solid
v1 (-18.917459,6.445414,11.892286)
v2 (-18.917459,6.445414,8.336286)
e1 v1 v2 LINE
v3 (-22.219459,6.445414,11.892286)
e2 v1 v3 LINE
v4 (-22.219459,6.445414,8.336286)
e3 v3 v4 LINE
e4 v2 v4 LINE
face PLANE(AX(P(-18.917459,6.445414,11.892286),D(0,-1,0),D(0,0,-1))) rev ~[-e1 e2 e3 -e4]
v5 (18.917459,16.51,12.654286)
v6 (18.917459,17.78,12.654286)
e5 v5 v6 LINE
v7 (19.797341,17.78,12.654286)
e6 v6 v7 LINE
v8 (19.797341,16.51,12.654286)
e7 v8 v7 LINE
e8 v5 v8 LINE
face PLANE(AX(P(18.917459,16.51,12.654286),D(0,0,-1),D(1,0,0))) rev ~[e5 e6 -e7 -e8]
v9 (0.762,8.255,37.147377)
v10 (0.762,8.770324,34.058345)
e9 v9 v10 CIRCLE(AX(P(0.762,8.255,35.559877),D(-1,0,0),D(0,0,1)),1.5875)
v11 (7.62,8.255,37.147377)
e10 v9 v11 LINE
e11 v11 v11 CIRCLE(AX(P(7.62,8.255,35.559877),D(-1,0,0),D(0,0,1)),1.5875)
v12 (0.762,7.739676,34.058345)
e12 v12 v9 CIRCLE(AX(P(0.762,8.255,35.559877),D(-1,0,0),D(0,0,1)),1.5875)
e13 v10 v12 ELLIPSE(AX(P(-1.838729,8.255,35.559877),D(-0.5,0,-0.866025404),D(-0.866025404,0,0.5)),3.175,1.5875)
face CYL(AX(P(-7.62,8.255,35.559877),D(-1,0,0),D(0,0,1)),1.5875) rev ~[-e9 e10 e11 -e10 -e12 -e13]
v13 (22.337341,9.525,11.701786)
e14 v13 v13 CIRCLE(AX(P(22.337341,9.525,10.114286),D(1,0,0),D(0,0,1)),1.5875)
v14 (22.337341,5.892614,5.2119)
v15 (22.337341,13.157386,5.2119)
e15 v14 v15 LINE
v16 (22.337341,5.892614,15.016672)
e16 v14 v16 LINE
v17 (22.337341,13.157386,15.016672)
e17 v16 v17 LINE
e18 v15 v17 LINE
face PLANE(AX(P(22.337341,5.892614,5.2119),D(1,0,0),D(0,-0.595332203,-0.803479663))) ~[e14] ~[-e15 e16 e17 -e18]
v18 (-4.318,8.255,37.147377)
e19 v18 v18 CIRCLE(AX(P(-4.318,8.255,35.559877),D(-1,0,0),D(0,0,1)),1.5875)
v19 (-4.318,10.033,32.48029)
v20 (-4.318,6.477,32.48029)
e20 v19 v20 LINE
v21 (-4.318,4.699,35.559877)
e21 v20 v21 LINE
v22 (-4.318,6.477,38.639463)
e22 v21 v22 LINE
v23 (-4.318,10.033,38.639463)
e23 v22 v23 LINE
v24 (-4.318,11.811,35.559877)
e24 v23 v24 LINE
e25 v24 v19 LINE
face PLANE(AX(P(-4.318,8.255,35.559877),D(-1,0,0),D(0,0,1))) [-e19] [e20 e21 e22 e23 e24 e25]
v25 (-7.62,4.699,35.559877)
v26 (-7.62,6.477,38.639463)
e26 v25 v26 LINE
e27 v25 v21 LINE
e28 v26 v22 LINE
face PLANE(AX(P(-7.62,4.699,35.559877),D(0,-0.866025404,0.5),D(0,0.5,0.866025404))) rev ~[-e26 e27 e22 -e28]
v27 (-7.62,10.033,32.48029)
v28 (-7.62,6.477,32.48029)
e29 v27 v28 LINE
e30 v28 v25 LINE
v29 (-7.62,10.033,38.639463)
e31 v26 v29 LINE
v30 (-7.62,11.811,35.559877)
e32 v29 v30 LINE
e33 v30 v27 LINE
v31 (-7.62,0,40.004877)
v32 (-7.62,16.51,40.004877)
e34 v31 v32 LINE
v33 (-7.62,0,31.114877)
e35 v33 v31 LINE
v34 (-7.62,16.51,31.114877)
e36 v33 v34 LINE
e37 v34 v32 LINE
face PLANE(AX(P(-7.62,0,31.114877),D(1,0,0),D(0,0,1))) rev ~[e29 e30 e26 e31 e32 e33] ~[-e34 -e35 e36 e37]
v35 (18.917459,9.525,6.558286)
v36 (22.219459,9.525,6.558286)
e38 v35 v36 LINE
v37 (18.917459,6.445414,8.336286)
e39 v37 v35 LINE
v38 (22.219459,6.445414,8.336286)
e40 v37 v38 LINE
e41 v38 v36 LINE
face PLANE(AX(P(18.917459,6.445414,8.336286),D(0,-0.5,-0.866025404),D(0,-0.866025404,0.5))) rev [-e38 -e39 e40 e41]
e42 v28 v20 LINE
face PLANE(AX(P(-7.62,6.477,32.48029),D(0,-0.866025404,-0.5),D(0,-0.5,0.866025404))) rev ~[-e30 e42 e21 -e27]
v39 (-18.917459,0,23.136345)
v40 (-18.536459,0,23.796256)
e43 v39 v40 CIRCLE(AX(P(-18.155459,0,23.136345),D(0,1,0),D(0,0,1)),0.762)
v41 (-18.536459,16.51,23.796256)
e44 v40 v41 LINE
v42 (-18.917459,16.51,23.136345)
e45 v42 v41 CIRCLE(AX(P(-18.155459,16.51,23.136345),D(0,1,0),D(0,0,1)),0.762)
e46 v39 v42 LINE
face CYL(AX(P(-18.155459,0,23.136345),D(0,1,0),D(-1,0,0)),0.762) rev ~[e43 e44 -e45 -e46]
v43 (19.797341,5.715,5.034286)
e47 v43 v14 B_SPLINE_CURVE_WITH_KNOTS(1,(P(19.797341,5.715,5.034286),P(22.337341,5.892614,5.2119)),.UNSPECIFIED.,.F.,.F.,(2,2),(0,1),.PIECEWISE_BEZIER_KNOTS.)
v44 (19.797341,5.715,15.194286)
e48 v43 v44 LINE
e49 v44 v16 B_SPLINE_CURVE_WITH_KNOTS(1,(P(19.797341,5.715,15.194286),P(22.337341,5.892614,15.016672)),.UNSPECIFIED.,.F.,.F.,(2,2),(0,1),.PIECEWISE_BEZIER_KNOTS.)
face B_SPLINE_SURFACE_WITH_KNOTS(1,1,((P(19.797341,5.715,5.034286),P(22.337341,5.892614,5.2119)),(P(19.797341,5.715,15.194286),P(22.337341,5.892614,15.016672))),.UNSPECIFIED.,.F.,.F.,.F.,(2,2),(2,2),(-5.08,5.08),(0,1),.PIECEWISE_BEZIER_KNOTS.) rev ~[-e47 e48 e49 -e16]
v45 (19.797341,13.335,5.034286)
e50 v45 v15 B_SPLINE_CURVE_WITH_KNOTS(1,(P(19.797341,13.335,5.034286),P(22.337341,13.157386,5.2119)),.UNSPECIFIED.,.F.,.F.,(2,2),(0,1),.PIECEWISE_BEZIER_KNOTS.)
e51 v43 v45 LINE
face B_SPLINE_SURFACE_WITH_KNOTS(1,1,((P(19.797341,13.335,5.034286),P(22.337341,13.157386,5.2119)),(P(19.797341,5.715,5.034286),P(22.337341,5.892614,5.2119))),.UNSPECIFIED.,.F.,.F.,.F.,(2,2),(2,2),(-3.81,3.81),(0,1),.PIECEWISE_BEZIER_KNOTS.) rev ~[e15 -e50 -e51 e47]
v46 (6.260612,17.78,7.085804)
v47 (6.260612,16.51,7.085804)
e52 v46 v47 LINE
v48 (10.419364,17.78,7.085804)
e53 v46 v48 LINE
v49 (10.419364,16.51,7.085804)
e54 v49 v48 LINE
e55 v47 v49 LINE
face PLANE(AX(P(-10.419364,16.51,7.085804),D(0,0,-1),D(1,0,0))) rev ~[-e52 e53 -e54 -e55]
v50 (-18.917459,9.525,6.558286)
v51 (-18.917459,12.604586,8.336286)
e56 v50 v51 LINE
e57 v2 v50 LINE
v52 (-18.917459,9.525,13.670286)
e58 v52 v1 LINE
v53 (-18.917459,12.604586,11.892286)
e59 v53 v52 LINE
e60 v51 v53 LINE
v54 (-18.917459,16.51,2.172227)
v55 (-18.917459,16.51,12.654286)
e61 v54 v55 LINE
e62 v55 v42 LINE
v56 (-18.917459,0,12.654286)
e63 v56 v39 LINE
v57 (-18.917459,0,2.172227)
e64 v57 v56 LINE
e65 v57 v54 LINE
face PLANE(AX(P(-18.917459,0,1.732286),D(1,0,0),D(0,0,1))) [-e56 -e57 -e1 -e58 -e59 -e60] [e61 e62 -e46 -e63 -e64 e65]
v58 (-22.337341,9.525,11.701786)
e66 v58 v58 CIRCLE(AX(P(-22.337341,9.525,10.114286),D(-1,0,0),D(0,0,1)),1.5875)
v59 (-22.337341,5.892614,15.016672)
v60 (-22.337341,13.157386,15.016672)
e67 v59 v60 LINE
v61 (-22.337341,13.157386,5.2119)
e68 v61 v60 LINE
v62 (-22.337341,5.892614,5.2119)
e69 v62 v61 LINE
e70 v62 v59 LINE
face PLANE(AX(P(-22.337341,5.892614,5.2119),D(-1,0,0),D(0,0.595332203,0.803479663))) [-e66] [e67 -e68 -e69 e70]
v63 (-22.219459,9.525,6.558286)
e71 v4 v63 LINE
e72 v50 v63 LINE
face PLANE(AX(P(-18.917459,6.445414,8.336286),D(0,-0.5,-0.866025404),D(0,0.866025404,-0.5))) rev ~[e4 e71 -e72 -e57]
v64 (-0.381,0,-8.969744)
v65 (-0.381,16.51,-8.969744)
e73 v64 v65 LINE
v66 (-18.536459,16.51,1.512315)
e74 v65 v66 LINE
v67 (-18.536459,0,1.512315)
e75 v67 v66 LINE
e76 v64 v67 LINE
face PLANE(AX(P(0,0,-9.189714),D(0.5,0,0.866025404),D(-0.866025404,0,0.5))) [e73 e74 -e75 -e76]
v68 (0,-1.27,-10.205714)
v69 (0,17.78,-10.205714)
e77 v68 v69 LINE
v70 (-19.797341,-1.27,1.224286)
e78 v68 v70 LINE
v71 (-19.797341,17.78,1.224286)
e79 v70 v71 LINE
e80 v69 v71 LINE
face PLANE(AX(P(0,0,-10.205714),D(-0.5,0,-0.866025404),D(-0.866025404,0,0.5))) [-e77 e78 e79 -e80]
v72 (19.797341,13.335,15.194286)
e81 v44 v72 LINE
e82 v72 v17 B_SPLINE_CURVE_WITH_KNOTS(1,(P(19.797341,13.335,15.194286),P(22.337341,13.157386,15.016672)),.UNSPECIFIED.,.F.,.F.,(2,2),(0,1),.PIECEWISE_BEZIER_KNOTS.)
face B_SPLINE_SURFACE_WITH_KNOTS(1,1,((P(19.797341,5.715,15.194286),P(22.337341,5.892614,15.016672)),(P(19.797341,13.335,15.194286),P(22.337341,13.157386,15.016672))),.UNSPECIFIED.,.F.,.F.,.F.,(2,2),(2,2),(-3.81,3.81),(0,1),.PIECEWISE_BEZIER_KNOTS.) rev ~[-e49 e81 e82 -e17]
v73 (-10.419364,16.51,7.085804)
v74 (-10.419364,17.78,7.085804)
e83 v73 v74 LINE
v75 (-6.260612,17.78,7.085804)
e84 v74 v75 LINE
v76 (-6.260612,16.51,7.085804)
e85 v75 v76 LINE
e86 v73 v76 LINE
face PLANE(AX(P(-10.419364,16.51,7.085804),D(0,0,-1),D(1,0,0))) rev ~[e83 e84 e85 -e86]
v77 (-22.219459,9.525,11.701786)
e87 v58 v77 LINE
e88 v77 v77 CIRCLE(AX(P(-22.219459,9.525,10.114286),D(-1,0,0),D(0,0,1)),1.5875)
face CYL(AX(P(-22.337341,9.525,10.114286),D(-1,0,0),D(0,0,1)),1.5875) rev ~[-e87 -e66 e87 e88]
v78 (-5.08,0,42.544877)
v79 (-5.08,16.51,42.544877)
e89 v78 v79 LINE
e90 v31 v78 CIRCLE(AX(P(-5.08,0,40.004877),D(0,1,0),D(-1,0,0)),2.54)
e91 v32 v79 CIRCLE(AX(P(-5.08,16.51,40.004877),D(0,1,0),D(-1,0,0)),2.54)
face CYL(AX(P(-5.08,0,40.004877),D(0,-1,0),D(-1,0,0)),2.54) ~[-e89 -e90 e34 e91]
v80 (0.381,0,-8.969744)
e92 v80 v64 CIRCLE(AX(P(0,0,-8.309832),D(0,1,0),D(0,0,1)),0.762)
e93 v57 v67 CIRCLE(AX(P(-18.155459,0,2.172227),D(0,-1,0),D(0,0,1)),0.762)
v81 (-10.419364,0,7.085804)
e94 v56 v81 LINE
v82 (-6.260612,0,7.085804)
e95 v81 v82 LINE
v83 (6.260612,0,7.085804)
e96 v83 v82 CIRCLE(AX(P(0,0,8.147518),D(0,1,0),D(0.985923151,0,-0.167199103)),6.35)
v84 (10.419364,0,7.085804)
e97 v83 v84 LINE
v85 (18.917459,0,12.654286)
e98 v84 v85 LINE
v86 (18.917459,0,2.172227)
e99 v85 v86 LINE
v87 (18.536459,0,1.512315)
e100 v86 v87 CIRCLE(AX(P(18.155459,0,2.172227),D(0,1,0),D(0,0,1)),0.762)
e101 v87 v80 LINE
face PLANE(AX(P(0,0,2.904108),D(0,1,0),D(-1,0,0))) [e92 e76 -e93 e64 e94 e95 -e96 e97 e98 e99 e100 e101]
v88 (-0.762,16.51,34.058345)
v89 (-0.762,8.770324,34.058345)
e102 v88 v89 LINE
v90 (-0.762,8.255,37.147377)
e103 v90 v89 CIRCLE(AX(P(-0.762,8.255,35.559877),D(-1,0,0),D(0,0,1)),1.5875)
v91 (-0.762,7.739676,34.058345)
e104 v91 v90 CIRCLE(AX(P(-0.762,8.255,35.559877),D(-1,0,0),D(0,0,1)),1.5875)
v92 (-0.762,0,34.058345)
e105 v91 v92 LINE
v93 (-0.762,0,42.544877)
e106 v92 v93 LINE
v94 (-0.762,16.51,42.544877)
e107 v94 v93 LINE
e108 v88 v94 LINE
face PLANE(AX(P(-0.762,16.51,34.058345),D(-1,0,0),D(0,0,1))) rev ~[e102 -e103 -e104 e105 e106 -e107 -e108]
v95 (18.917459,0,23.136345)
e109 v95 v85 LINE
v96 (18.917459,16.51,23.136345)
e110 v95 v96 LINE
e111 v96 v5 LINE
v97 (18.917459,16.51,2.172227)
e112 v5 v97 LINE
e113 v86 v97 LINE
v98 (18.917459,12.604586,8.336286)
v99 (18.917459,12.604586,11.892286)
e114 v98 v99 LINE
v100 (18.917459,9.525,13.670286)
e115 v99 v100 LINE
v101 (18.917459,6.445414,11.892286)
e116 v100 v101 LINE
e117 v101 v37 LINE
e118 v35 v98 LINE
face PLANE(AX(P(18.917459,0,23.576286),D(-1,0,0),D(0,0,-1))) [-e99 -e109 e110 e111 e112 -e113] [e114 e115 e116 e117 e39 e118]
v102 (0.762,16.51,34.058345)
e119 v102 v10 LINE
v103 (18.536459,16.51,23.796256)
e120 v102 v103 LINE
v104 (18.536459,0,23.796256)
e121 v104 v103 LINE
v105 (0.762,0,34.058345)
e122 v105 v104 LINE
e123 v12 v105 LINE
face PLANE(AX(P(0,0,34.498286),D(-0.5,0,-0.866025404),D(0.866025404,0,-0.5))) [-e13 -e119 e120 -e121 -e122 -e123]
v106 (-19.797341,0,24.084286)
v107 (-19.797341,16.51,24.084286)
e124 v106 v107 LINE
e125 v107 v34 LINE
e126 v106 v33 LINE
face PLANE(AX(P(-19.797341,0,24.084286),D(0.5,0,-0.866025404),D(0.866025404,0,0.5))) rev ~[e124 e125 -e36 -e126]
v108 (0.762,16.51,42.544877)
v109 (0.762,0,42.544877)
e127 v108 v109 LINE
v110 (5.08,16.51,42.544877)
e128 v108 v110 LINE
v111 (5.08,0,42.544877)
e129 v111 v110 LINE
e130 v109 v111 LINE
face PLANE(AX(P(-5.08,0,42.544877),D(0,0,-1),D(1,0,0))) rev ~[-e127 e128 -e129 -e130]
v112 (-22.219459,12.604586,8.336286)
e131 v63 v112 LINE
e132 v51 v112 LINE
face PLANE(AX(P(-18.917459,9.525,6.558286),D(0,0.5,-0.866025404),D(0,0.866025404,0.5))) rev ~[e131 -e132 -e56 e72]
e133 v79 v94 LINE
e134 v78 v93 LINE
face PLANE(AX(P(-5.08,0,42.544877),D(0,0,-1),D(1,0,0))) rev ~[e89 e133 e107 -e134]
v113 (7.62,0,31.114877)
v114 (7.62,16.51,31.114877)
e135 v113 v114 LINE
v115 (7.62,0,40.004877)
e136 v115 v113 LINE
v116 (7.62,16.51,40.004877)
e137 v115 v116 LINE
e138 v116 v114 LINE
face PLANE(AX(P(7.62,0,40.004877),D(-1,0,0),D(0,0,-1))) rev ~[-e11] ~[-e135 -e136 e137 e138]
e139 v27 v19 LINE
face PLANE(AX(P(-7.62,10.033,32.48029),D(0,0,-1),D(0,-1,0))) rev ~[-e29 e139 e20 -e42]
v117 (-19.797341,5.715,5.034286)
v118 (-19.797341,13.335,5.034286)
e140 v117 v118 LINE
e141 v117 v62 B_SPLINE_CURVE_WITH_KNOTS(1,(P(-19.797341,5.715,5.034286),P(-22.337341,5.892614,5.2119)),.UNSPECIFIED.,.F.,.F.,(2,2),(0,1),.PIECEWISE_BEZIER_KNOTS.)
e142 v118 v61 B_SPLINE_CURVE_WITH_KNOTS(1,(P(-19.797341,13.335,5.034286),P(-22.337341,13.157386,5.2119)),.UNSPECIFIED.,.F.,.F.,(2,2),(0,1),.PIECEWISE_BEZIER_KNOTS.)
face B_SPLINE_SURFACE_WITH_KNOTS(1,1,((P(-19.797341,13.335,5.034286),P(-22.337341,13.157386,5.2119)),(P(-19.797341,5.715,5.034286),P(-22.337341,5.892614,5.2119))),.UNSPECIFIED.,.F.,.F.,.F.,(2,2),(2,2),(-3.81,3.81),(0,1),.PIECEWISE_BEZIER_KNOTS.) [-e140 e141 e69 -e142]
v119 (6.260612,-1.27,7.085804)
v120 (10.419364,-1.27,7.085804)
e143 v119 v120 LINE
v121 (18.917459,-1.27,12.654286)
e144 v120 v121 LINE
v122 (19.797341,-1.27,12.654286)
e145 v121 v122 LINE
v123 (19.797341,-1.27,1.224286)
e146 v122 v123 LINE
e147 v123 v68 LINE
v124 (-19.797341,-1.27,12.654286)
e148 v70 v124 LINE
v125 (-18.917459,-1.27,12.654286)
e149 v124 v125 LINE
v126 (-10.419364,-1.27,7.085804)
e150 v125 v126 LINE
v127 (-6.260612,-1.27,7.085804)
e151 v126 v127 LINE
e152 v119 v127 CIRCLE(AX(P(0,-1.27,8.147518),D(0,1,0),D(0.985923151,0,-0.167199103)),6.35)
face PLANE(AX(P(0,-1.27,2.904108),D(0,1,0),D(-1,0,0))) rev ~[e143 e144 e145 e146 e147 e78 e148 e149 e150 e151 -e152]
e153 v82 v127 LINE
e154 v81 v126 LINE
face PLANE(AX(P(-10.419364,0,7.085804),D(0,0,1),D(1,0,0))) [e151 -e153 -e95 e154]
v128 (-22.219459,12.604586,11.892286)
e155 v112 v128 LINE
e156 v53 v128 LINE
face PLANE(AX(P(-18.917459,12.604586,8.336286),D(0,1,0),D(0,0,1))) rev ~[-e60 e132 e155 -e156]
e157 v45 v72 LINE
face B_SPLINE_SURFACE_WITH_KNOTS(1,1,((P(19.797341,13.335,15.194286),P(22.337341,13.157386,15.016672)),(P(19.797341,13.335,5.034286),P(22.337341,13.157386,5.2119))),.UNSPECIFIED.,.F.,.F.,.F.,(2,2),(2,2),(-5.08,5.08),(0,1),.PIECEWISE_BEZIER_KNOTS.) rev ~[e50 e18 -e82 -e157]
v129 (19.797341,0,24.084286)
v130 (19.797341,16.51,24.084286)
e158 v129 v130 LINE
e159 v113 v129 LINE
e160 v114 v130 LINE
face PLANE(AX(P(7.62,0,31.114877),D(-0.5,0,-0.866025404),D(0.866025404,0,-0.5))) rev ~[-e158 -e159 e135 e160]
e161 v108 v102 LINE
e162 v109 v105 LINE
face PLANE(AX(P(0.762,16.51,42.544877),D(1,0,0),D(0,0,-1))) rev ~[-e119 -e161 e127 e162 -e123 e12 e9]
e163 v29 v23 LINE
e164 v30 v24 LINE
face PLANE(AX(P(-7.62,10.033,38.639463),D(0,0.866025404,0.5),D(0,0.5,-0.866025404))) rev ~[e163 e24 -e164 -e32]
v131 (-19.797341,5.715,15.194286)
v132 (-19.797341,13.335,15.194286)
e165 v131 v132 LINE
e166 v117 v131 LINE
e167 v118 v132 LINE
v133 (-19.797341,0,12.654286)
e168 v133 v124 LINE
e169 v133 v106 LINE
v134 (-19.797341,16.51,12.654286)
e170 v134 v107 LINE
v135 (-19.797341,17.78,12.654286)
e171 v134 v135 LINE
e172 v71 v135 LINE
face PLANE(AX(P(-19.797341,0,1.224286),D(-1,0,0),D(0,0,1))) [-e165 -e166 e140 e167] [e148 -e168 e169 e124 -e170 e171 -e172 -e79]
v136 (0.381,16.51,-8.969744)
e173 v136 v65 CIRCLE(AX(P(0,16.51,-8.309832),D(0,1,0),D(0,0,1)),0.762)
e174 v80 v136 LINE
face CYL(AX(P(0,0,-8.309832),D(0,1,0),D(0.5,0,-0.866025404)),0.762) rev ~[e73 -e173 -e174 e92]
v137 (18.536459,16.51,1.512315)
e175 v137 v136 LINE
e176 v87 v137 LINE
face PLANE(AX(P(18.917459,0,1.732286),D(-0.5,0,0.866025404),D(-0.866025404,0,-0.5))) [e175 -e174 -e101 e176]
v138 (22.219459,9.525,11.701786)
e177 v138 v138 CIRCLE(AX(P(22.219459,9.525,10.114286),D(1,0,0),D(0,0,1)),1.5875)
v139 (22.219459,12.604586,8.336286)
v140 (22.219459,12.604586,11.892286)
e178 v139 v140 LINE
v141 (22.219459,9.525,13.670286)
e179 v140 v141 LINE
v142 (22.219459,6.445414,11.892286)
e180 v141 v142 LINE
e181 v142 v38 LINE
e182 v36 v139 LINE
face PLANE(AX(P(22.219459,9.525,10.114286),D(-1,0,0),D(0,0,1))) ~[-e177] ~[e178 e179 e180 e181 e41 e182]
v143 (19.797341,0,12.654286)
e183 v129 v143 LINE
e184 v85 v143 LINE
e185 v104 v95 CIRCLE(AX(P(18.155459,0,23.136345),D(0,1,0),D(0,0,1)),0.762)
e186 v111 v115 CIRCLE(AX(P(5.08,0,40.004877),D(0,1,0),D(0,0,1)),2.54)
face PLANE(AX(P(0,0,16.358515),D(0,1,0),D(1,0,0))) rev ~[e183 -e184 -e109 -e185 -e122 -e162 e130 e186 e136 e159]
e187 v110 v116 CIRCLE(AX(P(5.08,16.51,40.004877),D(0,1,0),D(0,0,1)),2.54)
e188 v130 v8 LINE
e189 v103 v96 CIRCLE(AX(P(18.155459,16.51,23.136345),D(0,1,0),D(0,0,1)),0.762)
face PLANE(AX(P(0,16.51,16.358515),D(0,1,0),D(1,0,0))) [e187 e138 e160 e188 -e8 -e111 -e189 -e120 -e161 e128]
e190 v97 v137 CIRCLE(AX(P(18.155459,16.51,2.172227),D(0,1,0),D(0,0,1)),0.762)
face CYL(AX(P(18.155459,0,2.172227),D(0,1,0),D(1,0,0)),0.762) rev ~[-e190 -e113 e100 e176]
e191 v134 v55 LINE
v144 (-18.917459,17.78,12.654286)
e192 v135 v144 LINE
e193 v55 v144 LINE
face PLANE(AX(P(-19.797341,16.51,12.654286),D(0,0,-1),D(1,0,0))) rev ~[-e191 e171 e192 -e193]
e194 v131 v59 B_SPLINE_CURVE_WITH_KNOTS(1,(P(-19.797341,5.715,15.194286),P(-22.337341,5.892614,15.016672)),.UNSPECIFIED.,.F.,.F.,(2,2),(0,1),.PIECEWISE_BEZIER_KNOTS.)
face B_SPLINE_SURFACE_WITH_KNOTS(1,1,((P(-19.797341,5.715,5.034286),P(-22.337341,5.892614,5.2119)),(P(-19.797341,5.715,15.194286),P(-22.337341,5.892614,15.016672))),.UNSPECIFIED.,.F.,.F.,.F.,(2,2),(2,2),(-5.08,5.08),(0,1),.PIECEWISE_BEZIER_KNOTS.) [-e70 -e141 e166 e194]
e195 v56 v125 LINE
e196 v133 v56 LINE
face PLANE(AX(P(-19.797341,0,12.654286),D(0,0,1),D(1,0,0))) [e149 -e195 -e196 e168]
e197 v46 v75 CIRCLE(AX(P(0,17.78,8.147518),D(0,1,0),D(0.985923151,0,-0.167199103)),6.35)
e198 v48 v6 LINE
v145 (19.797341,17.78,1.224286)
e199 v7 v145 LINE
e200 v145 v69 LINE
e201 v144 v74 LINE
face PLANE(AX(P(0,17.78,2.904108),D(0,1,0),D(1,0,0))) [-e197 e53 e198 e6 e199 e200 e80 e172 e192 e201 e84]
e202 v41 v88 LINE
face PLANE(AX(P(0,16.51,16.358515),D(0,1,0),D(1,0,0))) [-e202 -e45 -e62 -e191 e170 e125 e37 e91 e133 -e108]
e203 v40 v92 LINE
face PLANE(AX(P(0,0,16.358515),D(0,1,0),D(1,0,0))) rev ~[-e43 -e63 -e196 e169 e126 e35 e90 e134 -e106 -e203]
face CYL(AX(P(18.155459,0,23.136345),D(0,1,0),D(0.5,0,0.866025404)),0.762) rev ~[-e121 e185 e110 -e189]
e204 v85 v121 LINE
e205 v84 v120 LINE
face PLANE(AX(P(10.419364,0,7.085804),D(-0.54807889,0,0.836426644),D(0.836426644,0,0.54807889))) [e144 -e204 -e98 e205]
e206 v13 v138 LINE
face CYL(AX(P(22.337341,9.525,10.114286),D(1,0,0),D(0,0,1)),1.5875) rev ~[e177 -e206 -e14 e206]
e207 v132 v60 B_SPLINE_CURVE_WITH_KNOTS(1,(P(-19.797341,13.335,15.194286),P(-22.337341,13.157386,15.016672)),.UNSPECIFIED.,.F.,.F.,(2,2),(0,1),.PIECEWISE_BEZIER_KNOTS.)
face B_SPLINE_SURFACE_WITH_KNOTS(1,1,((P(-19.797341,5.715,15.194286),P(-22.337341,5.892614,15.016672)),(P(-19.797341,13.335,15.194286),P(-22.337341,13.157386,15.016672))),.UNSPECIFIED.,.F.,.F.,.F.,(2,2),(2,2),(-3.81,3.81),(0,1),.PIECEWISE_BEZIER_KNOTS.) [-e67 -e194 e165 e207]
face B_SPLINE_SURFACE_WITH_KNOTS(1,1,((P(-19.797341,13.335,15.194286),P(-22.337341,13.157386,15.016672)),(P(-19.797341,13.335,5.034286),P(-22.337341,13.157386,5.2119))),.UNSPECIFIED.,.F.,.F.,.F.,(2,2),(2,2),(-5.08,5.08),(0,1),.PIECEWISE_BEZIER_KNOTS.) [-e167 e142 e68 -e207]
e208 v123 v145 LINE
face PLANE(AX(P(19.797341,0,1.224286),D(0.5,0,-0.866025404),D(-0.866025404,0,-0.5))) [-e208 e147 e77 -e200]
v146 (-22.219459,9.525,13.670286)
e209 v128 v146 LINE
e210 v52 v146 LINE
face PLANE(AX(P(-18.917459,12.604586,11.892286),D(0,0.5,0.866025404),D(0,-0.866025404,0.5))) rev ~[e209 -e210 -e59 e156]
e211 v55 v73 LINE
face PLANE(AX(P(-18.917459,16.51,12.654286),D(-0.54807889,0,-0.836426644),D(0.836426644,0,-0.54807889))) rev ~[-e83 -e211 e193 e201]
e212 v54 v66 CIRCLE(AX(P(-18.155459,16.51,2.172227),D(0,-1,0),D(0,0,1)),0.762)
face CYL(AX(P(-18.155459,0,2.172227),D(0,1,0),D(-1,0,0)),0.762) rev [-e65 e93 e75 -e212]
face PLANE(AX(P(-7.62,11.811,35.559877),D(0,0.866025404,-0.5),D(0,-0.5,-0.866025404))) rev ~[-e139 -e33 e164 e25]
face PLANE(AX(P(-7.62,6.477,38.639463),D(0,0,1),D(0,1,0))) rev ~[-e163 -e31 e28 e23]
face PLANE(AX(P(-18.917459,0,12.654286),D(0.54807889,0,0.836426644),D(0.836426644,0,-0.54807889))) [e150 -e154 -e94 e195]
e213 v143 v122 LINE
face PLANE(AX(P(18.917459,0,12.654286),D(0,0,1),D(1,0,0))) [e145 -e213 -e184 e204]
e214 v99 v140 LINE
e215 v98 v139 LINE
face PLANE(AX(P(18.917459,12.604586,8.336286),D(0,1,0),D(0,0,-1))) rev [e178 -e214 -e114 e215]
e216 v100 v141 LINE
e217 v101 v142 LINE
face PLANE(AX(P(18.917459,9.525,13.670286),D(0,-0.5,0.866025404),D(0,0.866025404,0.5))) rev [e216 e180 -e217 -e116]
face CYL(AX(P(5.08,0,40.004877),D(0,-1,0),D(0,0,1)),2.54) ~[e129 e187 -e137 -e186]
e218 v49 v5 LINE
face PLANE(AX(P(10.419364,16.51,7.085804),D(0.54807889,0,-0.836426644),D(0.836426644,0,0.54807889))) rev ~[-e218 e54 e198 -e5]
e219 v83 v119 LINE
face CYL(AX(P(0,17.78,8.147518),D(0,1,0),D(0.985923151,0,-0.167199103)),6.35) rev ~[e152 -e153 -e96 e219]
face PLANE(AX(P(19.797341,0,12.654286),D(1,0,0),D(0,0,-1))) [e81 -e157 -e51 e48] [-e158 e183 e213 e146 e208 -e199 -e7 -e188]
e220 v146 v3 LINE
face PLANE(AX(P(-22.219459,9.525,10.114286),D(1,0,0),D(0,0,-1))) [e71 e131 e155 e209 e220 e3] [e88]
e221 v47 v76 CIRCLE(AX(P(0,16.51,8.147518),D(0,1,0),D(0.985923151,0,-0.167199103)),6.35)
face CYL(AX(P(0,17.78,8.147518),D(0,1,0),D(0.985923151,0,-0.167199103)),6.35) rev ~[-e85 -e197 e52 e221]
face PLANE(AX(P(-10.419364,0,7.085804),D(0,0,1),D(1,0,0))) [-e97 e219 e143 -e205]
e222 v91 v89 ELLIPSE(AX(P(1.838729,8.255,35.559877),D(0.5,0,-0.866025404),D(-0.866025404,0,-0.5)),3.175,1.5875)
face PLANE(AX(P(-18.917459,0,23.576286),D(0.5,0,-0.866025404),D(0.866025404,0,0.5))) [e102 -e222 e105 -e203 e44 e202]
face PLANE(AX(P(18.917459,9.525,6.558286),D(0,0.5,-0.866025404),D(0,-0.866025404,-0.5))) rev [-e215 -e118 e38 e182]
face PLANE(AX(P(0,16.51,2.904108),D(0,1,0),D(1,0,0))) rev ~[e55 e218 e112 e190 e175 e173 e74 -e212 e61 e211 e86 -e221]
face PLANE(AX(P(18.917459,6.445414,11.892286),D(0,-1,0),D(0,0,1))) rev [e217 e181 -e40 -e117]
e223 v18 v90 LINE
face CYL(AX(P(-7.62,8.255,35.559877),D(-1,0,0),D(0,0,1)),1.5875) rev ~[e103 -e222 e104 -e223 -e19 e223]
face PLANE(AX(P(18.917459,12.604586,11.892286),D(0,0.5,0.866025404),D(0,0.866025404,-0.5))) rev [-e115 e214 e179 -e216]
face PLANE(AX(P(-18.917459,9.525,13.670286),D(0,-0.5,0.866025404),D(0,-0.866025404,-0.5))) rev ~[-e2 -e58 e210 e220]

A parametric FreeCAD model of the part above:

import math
import FreeCAD as App
import Part
import Sketcher

V = App.Vector
Q = App.Units.Quantity


def edges_at(feature, points):
    """Names of the edges that pass closest to the given points."""
    edges = feature.Shape.Edges
    near = lambda p: min(range(len(edges)), key=lambda i: edges[i].distToShape(Part.Vertex(*p))[0])
    return sorted({f"Edge{near(p) + 1}" for p in points})

doc = App.newDocument("Part")
params = doc.addObject("Spreadsheet::Sheet", "Params")
for row, (alias, value) in enumerate([
    ("sketch1_radius", "0.1 in"),
    ("sketch1_width", "0.4 in"),
    ("sketch1_height", "0.9 in"),
    ("sketch1_length", "0.9 in"),
    ("sketch1_height2", "0.35 in"),
    ("pad1_length", "0.65 in"),
    ("sketch2_width", "0.06 in"),
    ("sketch3_diameter", "0.125 in"),
    ("sketch4_length", "0.4 in"),
    ("sketch4_length2", "0.9 in"),
    ("sketch4_height", "0.45 in"),
    ("pad2_length", "0.05 in"),
    ("sketch5_length", "0.4 in"),
    ("sketch5_length2", "0.9 in"),
    ("sketch5_height", "0.45 in"),
    ("pad3_length", "0.05 in"),
    ("sketch6_width", "0.3 in"),
    ("sketch6_height", "0.4 in"),
    ("pad4_length", "0.1 in"),
    ("pad4_taper", "-4 deg"),
    ("sketch7_diameter", "0.125 in"),
    ("sketch8_height", "0.14 in"),
    ("sketch8_length", "0.14 in"),
    ("pocket4_length", "0.13 in"),
    ("fillet_radius", "0.03 in"),
    ("sketch9_diameter", "0.125 in"),
    ("sketch10_width", "0.14 in"),
    ("sketch10_length", "0.14 in"),
    ("pocket6_length", "0.13 in"),
    ("sketch11_radius", "0.25 in"),
    ("pocket7_length", "3 in"),
], start=1):
    params.set(f"A{row}", alias)
    params.set(f"B{row}", "=" + value)
    params.setAlias(f"B{row}", alias)

body = doc.addObject("PartDesign::Body", "Body")

# Sketch on XZ plane
sketch1 = body.newObject("Sketcher::SketchObject", "Sketch")
sketch1.AttachmentSupport = (doc.getObject("XZ_Plane"), [""])
sketch1.MapMode = "FlatFace"
sketch1.addGeometry([
    Part.LineSegment(V(-7.6, 31.1, 0), V(-7.6, 40, 0)),  # 0
    Part.ArcOfCircle(Part.Circle(V(-5.1, 40, 0), V(0, 0, 1), 2.5), math.radians(90), math.radians(180)),  # 1
    Part.LineSegment(V(-5.1, 42.5, 0), V(5.1, 42.5, 0)),  # 2
    Part.ArcOfCircle(Part.Circle(V(5.1, 40, 0), V(0, 0, 1), 2.5), math.radians(0), math.radians(90)),  # 3
    Part.LineSegment(V(7.6, 40, 0), V(7.6, 31.1, 0)),  # 4
    Part.LineSegment(V(7.6, 31.1, 0), V(19.8, 24.1, 0)),  # 5
    Part.LineSegment(V(19.8, 24.1, 0), V(19.8, 1.2, 0)),  # 6
    Part.LineSegment(V(19.8, 1.2, 0), V(0, -10.2, 0)),  # 7
    Part.LineSegment(V(0, -10.2, 0), V(-19.8, 1.2, 0)),  # 8
    Part.LineSegment(V(-19.8, 1.2, 0), V(-19.8, 24.1, 0)),  # 9
    Part.LineSegment(V(-19.8, 24.1, 0), V(-7.6, 31.1, 0)),  # 10
    Part.LineSegment(V(-18.9, 1.7, 0), V(0, -9.2, 0)),  # 11
    Part.LineSegment(V(0, -9.2, 0), V(18.9, 1.7, 0)),  # 12
    Part.LineSegment(V(18.9, 1.7, 0), V(18.9, 23.6, 0)),  # 13
    Part.LineSegment(V(18.9, 23.6, 0), V(0, 34.5, 0)),  # 14
    Part.LineSegment(V(0, 34.5, 0), V(-18.9, 23.6, 0)),  # 15
    Part.LineSegment(V(-18.9, 23.6, 0), V(-18.9, 1.7, 0)),  # 16
], False)
sketch1.addConstraint([
    Sketcher.Constraint("Tangent", 0, 2, 1, 2),
    Sketcher.Constraint("Tangent", 1, 1, 2, 1),
    Sketcher.Constraint("Tangent", 2, 2, 3, 2),
    Sketcher.Constraint("Tangent", 3, 1, 4, 1),
    Sketcher.Constraint("Coincident", 4, 2, 5, 1),
    Sketcher.Constraint("Coincident", 5, 2, 6, 1),
    Sketcher.Constraint("Coincident", 6, 2, 7, 1),
    Sketcher.Constraint("Coincident", 7, 2, 8, 1),
    Sketcher.Constraint("Coincident", 8, 2, 9, 1),
    Sketcher.Constraint("Coincident", 9, 2, 10, 1),
    Sketcher.Constraint("Coincident", 10, 2, 0, 1),
    Sketcher.Constraint("Coincident", 11, 2, 12, 1),
    Sketcher.Constraint("Coincident", 12, 2, 13, 1),
    Sketcher.Constraint("Coincident", 13, 2, 14, 1),
    Sketcher.Constraint("Coincident", 14, 2, 15, 1),
    Sketcher.Constraint("Coincident", 15, 2, 16, 1),
    Sketcher.Constraint("Coincident", 16, 2, 11, 1),
    Sketcher.Constraint("Vertical", 0),
    Sketcher.Constraint("Horizontal", 2),
    Sketcher.Constraint("Vertical", 4),
    Sketcher.Constraint("Vertical", 6),
    Sketcher.Constraint("Vertical", 9),
    Sketcher.Constraint("Vertical", 13),
    Sketcher.Constraint("Vertical", 16),
    Sketcher.Constraint("Equal", 1, 3),
    Sketcher.Constraint("Symmetric", 6, 2, 8, 2, -2),
    Sketcher.Constraint("Symmetric", 4, 2, 10, 2, -2),
    Sketcher.Constraint("Symmetric", 13, 2, 15, 2, -2),
    Sketcher.Constraint("PointOnObject", 7, 2, -2),
    Sketcher.Constraint("PointOnObject", 11, 2, -2),
    Sketcher.Constraint("PointOnObject", 14, 2, -2),
    Sketcher.Constraint("Parallel", 5, 8),
    Sketcher.Constraint("Parallel", 7, 10),
    Sketcher.Constraint("Parallel", 8, 11),
    Sketcher.Constraint("Parallel", 10, 12),
    Sketcher.Constraint("Parallel", 11, 14),
    Sketcher.Constraint("Radius", 1, Q("0.1 in")),
    Sketcher.Constraint("DistanceX", 2, 1, 2, 2, Q("0.4 in")),
    Sketcher.Constraint("DistanceY", 6, 2, 6, 1, Q("0.9 in")),
    Sketcher.Constraint("Angle", 5, Q("-30 deg")),
    Sketcher.Constraint("Distance", 7, Q("0.9 in")),
    Sketcher.Constraint("DistanceY", 0, 1, 0, 2, Q("0.35 in")),
    Sketcher.Constraint("DistanceY", 13, 1, 13, 2, Q("0.86 in")),
    Sketcher.Constraint("Distance", 11, Q("0.86 in")),
    Sketcher.Constraint("DistanceY", 7, 2, 11, 2, Q("0.04 in")),
    Sketcher.Constraint("DistanceY", -1, 1, 1, 3, Q("40.004877 mm")),
])
sketch1.setExpression("Constraints[36]", "Params.sketch1_radius")
sketch1.setExpression("Constraints[37]", "Params.sketch1_width")
sketch1.setExpression("Constraints[38]", "Params.sketch1_height")
sketch1.setExpression("Constraints[40]", "Params.sketch1_length")
sketch1.setExpression("Constraints[41]", "Params.sketch1_height2")
pad1 = body.newObject("PartDesign::Pad", "Pad")
pad1.Profile = sketch1
pad1.setExpression("Length", "Params.pad1_length")
pad1.Reversed = True

# Sketch on XZ plane
sketch2 = body.newObject("Sketcher::SketchObject", "Sketch001")
sketch2.AttachmentSupport = (doc.getObject("XZ_Plane"), [""])
sketch2.MapMode = "FlatFace"
sketch2.AttachmentOffset = App.Placement(V(0, 0, -0.65 * 25.4), App.Rotation())
sketch2.addGeometry([
    Part.LineSegment(V(-0.8, 34.1, 0), V(-0.8, 42.5, 0)),  # 0
    Part.LineSegment(V(-0.8, 42.5, 0), V(0.8, 42.5, 0)),  # 1
    Part.LineSegment(V(0.8, 42.5, 0), V(0.8, 34.1, 0)),  # 2
    Part.LineSegment(V(0.8, 34.1, 0), V(0, 34.5, 0)),  # 3
    Part.LineSegment(V(0, 34.5, 0), V(-0.8, 34.1, 0)),  # 4
], False)
sketch2.addConstraint([
    Sketcher.Constraint("Coincident", 0, 2, 1, 1),
    Sketcher.Constraint("Coincident", 1, 2, 2, 1),
    Sketcher.Constraint("Coincident", 2, 2, 3, 1),
    Sketcher.Constraint("Coincident", 3, 2, 4, 1),
    Sketcher.Constraint("Coincident", 4, 2, 0, 1),
    Sketcher.Constraint("Vertical", 0),
    Sketcher.Constraint("Horizontal", 1),
    Sketcher.Constraint("Vertical", 2),
    Sketcher.Constraint("Symmetric", 2, 2, 4, 2, -2),
    Sketcher.Constraint("PointOnObject", 3, 2, -2),
    Sketcher.Constraint("Angle", 3, Q("150 deg")),
    Sketcher.Constraint("DistanceX", 1, 1, 1, 2, Q("0.06 in")),
    Sketcher.Constraint("DistanceY", 0, 1, 0, 2, Q("8.486532 mm")),
    Sketcher.Constraint("DistanceY", -1, 1, 0, 2, Q("42.544877 mm")),
])
sketch2.setExpression("Constraints[11]", "Params.sketch2_width")
pocket1 = body.newObject("PartDesign::Pocket", "Pocket")
pocket1.Profile = sketch2
pocket1.Type = "ThroughAll"
pocket1.Reversed = True

# Sketch on YZ plane
sketch3 = body.newObject("Sketcher::SketchObject", "Sketch002")
sketch3.AttachmentSupport = (doc.getObject("YZ_Plane"), [""])
sketch3.MapMode = "FlatFace"
sketch3.AttachmentOffset = App.Placement(V(0, 0, -0.3 * 25.4), App.Rotation())
sketch3.addGeometry(Part.Circle(V(8.3, 35.6, 0), V(0, 0, 1), 1.6), False)
sketch3.addConstraint([
    Sketcher.Constraint("Diameter", 0, Q("0.125 in")),
    Sketcher.Constraint("DistanceX", -1, 1, 0, 3, Q("0.325 in")),
    Sketcher.Constraint("DistanceY", -1, 1, 0, 3, Q("35.559877 mm")),
])
sketch3.setExpression("Constraints[0]", "Params.sketch3_diameter")
pocket2 = body.newObject("PartDesign::Pocket", "Pocket001")
pocket2.Profile = sketch3
pocket2.Type = "ThroughAll"
pocket2.Reversed = True

# Sketch on XZ plane
sketch4 = body.newObject("Sketcher::SketchObject", "Sketch003")
sketch4.AttachmentSupport = (doc.getObject("XZ_Plane"), [""])
sketch4.MapMode = "FlatFace"
sketch4.AttachmentOffset = App.Placement(V(0, 0, -0.65 * 25.4), App.Rotation())
sketch4.addGeometry([
    Part.LineSegment(V(-10.4, 7.1, 0), V(10.4, 7.1, 0)),  # 0
    Part.LineSegment(V(10.4, 7.1, 0), V(18.9, 12.7, 0)),  # 1
    Part.LineSegment(V(18.9, 12.7, 0), V(19.8, 12.7, 0)),  # 2
    Part.LineSegment(V(19.8, 12.7, 0), V(19.8, 1.2, 0)),  # 3
    Part.LineSegment(V(19.8, 1.2, 0), V(0, -10.2, 0)),  # 4
    Part.LineSegment(V(0, -10.2, 0), V(-19.8, 1.2, 0)),  # 5
    Part.LineSegment(V(-19.8, 1.2, 0), V(-19.8, 12.7, 0)),  # 6
    Part.LineSegment(V(-19.8, 12.7, 0), V(-18.9, 12.7, 0)),  # 7
    Part.LineSegment(V(-18.9, 12.7, 0), V(-10.4, 7.1, 0)),  # 8
], False)
sketch4.addConstraint([
    Sketcher.Constraint("Coincident", 0, 2, 1, 1),
    Sketcher.Constraint("Coincident", 1, 2, 2, 1),
    Sketcher.Constraint("Coincident", 2, 2, 3, 1),
    Sketcher.Constraint("Coincident", 3, 2, 4, 1),
    Sketcher.Constraint("Coincident", 4, 2, 5, 1),
    Sketcher.Constraint("Coincident", 5, 2, 6, 1),
    Sketcher.Constraint("Coincident", 6, 2, 7, 1),
    Sketcher.Constraint("Coincident", 7, 2, 8, 1),
    Sketcher.Constraint("Coincident", 8, 2, 0, 1),
    Sketcher.Constraint("Horizontal", 0),
    Sketcher.Constraint("Horizontal", 2),
    Sketcher.Constraint("Vertical", 3),
    Sketcher.Constraint("Vertical", 6),
    Sketcher.Constraint("Horizontal", 7),
    Sketcher.Constraint("Symmetric", 3, 2, 5, 2, -2),
    Sketcher.Constraint("Symmetric", 1, 2, 7, 2, -2),
    Sketcher.Constraint("PointOnObject", 4, 2, -2),
    Sketcher.Constraint("Equal", 1, 8),
    Sketcher.Constraint("Angle", 4, Q("-150 deg")),
    Sketcher.Constraint("Distance", 1, Q("0.4 in")),
    Sketcher.Constraint("Distance", 4, Q("0.9 in")),
    Sketcher.Constraint("DistanceY", 3, 2, 3, 1, Q("0.45 in")),
    Sketcher.Constraint("DistanceX", 0, 1, 0, 2, Q("20.838728 mm")),
    Sketcher.Constraint("DistanceX", 2, 1, 2, 2, Q("0.879882 mm")),
    Sketcher.Constraint("DistanceY", -1, 1, 0, 2, Q("7.085804 mm")),
])
sketch4.setExpression("Constraints[19]", "Params.sketch4_length")
sketch4.setExpression("Constraints[20]", "Params.sketch4_length2")
sketch4.setExpression("Constraints[21]", "Params.sketch4_height")
pad2 = body.newObject("PartDesign::Pad", "Pad001")
pad2.Profile = sketch4
pad2.setExpression("Length", "Params.pad2_length")
pad2.Reversed = True

# Sketch on XZ plane
sketch5 = body.newObject("Sketcher::SketchObject", "Sketch004")
sketch5.AttachmentSupport = (doc.getObject("XZ_Plane"), [""])
sketch5.MapMode = "FlatFace"
sketch5.addGeometry([
    Part.LineSegment(V(10.4, 7.1, 0), V(-10.4, 7.1, 0)),  # 0
    Part.LineSegment(V(-10.4, 7.1, 0), V(-18.9, 12.7, 0)),  # 1
    Part.LineSegment(V(-18.9, 12.7, 0), V(-19.8, 12.7, 0)),  # 2
    Part.LineSegment(V(-19.8, 12.7, 0), V(-19.8, 1.2, 0)),  # 3
    Part.LineSegment(V(-19.8, 1.2, 0), V(0, -10.2, 0)),  # 4
    Part.LineSegment(V(0, -10.2, 0), V(19.8, 1.2, 0)),  # 5
    Part.LineSegment(V(19.8, 1.2, 0), V(19.8, 12.7, 0)),  # 6
    Part.LineSegment(V(19.8, 12.7, 0), V(18.9, 12.7, 0)),  # 7
    Part.LineSegment(V(18.9, 12.7, 0), V(10.4, 7.1, 0)),  # 8
], False)
sketch5.addConstraint([
    Sketcher.Constraint("Coincident", 0, 2, 1, 1),
    Sketcher.Constraint("Coincident", 1, 2, 2, 1),
    Sketcher.Constraint("Coincident", 2, 2, 3, 1),
    Sketcher.Constraint("Coincident", 3, 2, 4, 1),
    Sketcher.Constraint("Coincident", 4, 2, 5, 1),
    Sketcher.Constraint("Coincident", 5, 2, 6, 1),
    Sketcher.Constraint("Coincident", 6, 2, 7, 1),
    Sketcher.Constraint("Coincident", 7, 2, 8, 1),
    Sketcher.Constraint("Coincident", 8, 2, 0, 1),
    Sketcher.Constraint("Horizontal", 0),
    Sketcher.Constraint("Horizontal", 2),
    Sketcher.Constraint("Vertical", 3),
    Sketcher.Constraint("Vertical", 6),
    Sketcher.Constraint("Horizontal", 7),
    Sketcher.Constraint("Symmetric", 3, 2, 5, 2, -2),
    Sketcher.Constraint("Symmetric", 1, 2, 7, 2, -2),
    Sketcher.Constraint("PointOnObject", 4, 2, -2),
    Sketcher.Constraint("Equal", 1, 8),
    Sketcher.Constraint("Angle", 4, Q("-30 deg")),
    Sketcher.Constraint("Distance", 1, Q("0.4 in")),
    Sketcher.Constraint("Distance", 4, Q("0.9 in")),
    Sketcher.Constraint("DistanceY", 3, 2, 3, 1, Q("0.45 in")),
    Sketcher.Constraint("DistanceX", 0, 2, 0, 1, Q("20.838728 mm")),
    Sketcher.Constraint("DistanceX", 2, 2, 2, 1, Q("0.879882 mm")),
    Sketcher.Constraint("DistanceY", -1, 1, 0, 2, Q("7.085804 mm")),
])
sketch5.setExpression("Constraints[19]", "Params.sketch5_length")
sketch5.setExpression("Constraints[20]", "Params.sketch5_length2")
sketch5.setExpression("Constraints[21]", "Params.sketch5_height")
pad3 = body.newObject("PartDesign::Pad", "Pad002")
pad3.Profile = sketch5
pad3.setExpression("Length", "Params.pad3_length")

# Sketch on YZ plane
sketch6 = body.newObject("Sketcher::SketchObject", "Sketch005")
sketch6.AttachmentSupport = (doc.getObject("YZ_Plane"), [""])
sketch6.MapMode = "FlatFace"
sketch6.AttachmentOffset = App.Placement(V(0, 0, -19.797341), App.Rotation())
sketch6.addGeometry([
    Part.LineSegment(V(13, 5, 0), V(6, 5, 0)),
    Part.LineSegment(V(6, 5, 0), V(6, 15, 0)),
    Part.LineSegment(V(6, 15, 0), V(13, 15, 0)),
    Part.LineSegment(V(13, 15, 0), V(13, 5, 0)),
], False)
sketch6.addConstraint([
    Sketcher.Constraint("Coincident", 0, 2, 1, 1),
    Sketcher.Constraint("Coincident", 1, 2, 2, 1),
    Sketcher.Constraint("Coincident", 2, 2, 3, 1),
    Sketcher.Constraint("Coincident", 3, 2, 0, 1),
    Sketcher.Constraint("Horizontal", 0),
    Sketcher.Constraint("Vertical", 1),
    Sketcher.Constraint("Horizontal", 2),
    Sketcher.Constraint("Vertical", 3),
    Sketcher.Constraint("DistanceX", 0, 2, 0, 1, Q("0.3 in")),
    Sketcher.Constraint("DistanceY", 1, 1, 1, 2, Q("0.4 in")),
    Sketcher.Constraint("DistanceX", -1, 1, 0, 2, Q("0.225 in")),
    Sketcher.Constraint("DistanceY", -1, 1, 0, 2, Q("5.034286 mm")),
])
sketch6.setExpression("Constraints[8]", "Params.sketch6_width")
sketch6.setExpression("Constraints[9]", "Params.sketch6_height")
pad4 = body.newObject("PartDesign::Pad", "Pad003")
pad4.Profile = sketch6
pad4.setExpression("Length", "Params.pad4_length")
pad4.Reversed = True
pad4.setExpression("TaperAngle", "Params.pad4_taper")

# Sketch on YZ plane
sketch7 = body.newObject("Sketcher::SketchObject", "Sketch006")
sketch7.AttachmentSupport = (doc.getObject("YZ_Plane"), [""])
sketch7.MapMode = "FlatFace"
sketch7.AttachmentOffset = App.Placement(V(0, 0, -22.337341), App.Rotation())
sketch7.addGeometry(Part.Circle(V(9.5, 10.1, 0), V(0, 0, 1), 1.6), False)
sketch7.addConstraint([
    Sketcher.Constraint("Diameter", 0, Q("0.125 in")),
    Sketcher.Constraint("DistanceX", -1, 1, 0, 3, Q("0.375 in")),
    Sketcher.Constraint("DistanceY", -1, 1, 0, 3, Q("10.114286 mm")),
])
sketch7.setExpression("Constraints[0]", "Params.sketch7_diameter")
pocket3 = body.newObject("PartDesign::Pocket", "Pocket002")
pocket3.Profile = sketch7
pocket3.Type = "ThroughAll"
pocket3.Reversed = True

# Sketch on YZ plane
sketch8 = body.newObject("Sketcher::SketchObject", "Sketch007")
sketch8.AttachmentSupport = (doc.getObject("YZ_Plane"), [""])
sketch8.MapMode = "FlatFace"
sketch8.AttachmentOffset = App.Placement(V(0, 0, -18.917459), App.Rotation())
sketch8.addGeometry([
    Part.LineSegment(V(12.6, 8.3, 0), V(12.6, 11.9, 0)),  # 0
    Part.LineSegment(V(12.6, 11.9, 0), V(9.5, 13.7, 0)),  # 1
    Part.LineSegment(V(9.5, 13.7, 0), V(6.4, 11.9, 0)),  # 2
    Part.LineSegment(V(6.4, 11.9, 0), V(6.4, 8.3, 0)),  # 3
    Part.LineSegment(V(6.4, 8.3, 0), V(9.5, 6.6, 0)),  # 4
    Part.LineSegment(V(9.5, 6.6, 0), V(12.6, 8.3, 0)),  # 5
], False)
sketch8.addConstraint([
    Sketcher.Constraint("Coincident", 0, 2, 1, 1),
    Sketcher.Constraint("Coincident", 1, 2, 2, 1),
    Sketcher.Constraint("Coincident", 2, 2, 3, 1),
    Sketcher.Constraint("Coincident", 3, 2, 4, 1),
    Sketcher.Constraint("Coincident", 4, 2, 5, 1),
    Sketcher.Constraint("Coincident", 5, 2, 0, 1),
    Sketcher.Constraint("Vertical", 0),
    Sketcher.Constraint("Vertical", 3),
    Sketcher.Constraint("Parallel", 1, 4),
    Sketcher.Constraint("Parallel", 2, 5),
    Sketcher.Constraint("Horizontal", 0, 2, 2, 2),
    Sketcher.Constraint("Horizontal", 3, 2, 5, 2),
    Sketcher.Constraint("Vertical", 1, 2, 4, 2),
    Sketcher.Constraint("Angle", 1, Q("150 deg")),
    Sketcher.Constraint("DistanceY", 0, 1, 0, 2, Q("0.14 in")),
    Sketcher.Constraint("Distance", 1, Q("0.14 in")),
    Sketcher.Constraint("DistanceX", -1, 1, 1, 2, Q("0.375 in")),
    Sketcher.Constraint("DistanceY", -1, 1, 0, 2, Q("11.892286 mm")),
])
sketch8.setExpression("Constraints[14]", "Params.sketch8_height")
sketch8.setExpression("Constraints[15]", "Params.sketch8_length")
pocket4 = body.newObject("PartDesign::Pocket", "Pocket003")
pocket4.Profile = sketch8
pocket4.setExpression("Length", "Params.pocket4_length")
doc.recompute()

mirrored = body.newObject("PartDesign::Mirrored", "Mirrored")
mirrored.Originals = [pad4, pocket4]
mirrored.MirrorPlane = (doc.getObject("YZ_Plane"), [""])
body.Tip = mirrored
doc.recompute()

fillet = body.newObject("PartDesign::Fillet", "Fillet")
fillet.Base = (mirrored, edges_at(mirrored, [
    (18.917, 8.255, 1.732),
    (0, 8.255, -9.19),
    (-18.917, 8.255, 1.732),
    (-18.917, 8.255, 23.576),
    (18.917, 8.255, 23.576),
]))
fillet.setExpression("Radius", "Params.fillet_radius")

# Sketch on YZ plane
sketch9 = body.newObject("Sketcher::SketchObject", "Sketch008")
sketch9.AttachmentSupport = (doc.getObject("YZ_Plane"), [""])
sketch9.MapMode = "FlatFace"
sketch9.AttachmentOffset = App.Placement(V(0, 0, 22.337341), App.Rotation())
sketch9.addGeometry(Part.Circle(V(9.5, 10.1, 0), V(0, 0, 1), 1.6), False)
sketch9.addConstraint([
    Sketcher.Constraint("Diameter", 0, Q("0.125 in")),
    Sketcher.Constraint("DistanceX", -1, 1, 0, 3, Q("0.375 in")),
    Sketcher.Constraint("DistanceY", -1, 1, 0, 3, Q("10.114286 mm")),
])
sketch9.setExpression("Constraints[0]", "Params.sketch9_diameter")
pocket5 = body.newObject("PartDesign::Pocket", "Pocket004")
pocket5.Profile = sketch9
pocket5.Type = "ThroughAll"

# Sketch on YZ plane
sketch10 = body.newObject("Sketcher::SketchObject", "Sketch009")
sketch10.AttachmentSupport = (doc.getObject("YZ_Plane"), [""])
sketch10.MapMode = "FlatFace"
sketch10.AttachmentOffset = App.Placement(V(0, 0, -0.3 * 25.4), App.Rotation())
sketch10.addGeometry([
    Part.LineSegment(V(11.8, 35.6, 0), V(10, 32.5, 0)),  # 0
    Part.LineSegment(V(10, 32.5, 0), V(6.5, 32.5, 0)),  # 1
    Part.LineSegment(V(6.5, 32.5, 0), V(4.7, 35.6, 0)),  # 2
    Part.LineSegment(V(4.7, 35.6, 0), V(6.5, 38.6, 0)),  # 3
    Part.LineSegment(V(6.5, 38.6, 0), V(10, 38.6, 0)),  # 4
    Part.LineSegment(V(10, 38.6, 0), V(11.8, 35.6, 0)),  # 5
], False)
sketch10.addConstraint([
    Sketcher.Constraint("Coincident", 0, 2, 1, 1),
    Sketcher.Constraint("Coincident", 1, 2, 2, 1),
    Sketcher.Constraint("Coincident", 2, 2, 3, 1),
    Sketcher.Constraint("Coincident", 3, 2, 4, 1),
    Sketcher.Constraint("Coincident", 4, 2, 5, 1),
    Sketcher.Constraint("Coincident", 5, 2, 0, 1),
    Sketcher.Constraint("Horizontal", 1),
    Sketcher.Constraint("Horizontal", 4),
    Sketcher.Constraint("Parallel", 0, 3),
    Sketcher.Constraint("Parallel", 2, 5),
    Sketcher.Constraint("Horizontal", 2, 2, 5, 2),
    Sketcher.Constraint("Vertical", 1, 2, 3, 2),
    Sketcher.Constraint("Vertical", 0, 2, 4, 2),
    Sketcher.Constraint("Angle", 0, Q("-120 deg")),
    Sketcher.Constraint("DistanceX", 1, 2, 1, 1, Q("0.14 in")),
    Sketcher.Constraint("Distance", 0, Q("0.14 in")),
    Sketcher.Constraint("DistanceX", -1, 1, 0, 2, Q("0.395 in")),
    Sketcher.Constraint("DistanceY", -1, 1, 0, 2, Q("32.48029 mm")),
])
sketch10.setExpression("Constraints[14]", "Params.sketch10_width")
sketch10.setExpression("Constraints[15]", "Params.sketch10_length")
pocket6 = body.newObject("PartDesign::Pocket", "Pocket005")
pocket6.Profile = sketch10
pocket6.setExpression("Length", "Params.pocket6_length")
pocket6.Reversed = True

# Sketch on XZ plane
sketch11 = body.newObject("Sketcher::SketchObject", "Sketch010")
sketch11.AttachmentSupport = (doc.getObject("XZ_Plane"), [""])
sketch11.MapMode = "FlatFace"
sketch11.AttachmentOffset = App.Placement(V(0, 0, -0.7 * 25.4), App.Rotation())
sketch11.addGeometry([
    Part.LineSegment(V(-6, 7, 0), V(6, 7, 0)),
    Part.ArcOfCircle(Part.Circle(V(0, 8, 0), V(0, 0, 1), 6), math.radians(-170), math.radians(-10)),
], False)
sketch11.addConstraint([
    Sketcher.Constraint("Coincident", 0, 1, 1, 1),
    Sketcher.Constraint("Coincident", 1, 2, 0, 2),
    Sketcher.Constraint("Horizontal", 0),
    Sketcher.Constraint("PointOnObject", 1, 3, -2),
    Sketcher.Constraint("Radius", 1, Q("0.25 in")),
    Sketcher.Constraint("DistanceX", 0, 1, 0, 2, Q("12.521224 mm")),
    Sketcher.Constraint("DistanceY", -1, 1, 1, 3, Q("8.147518 mm")),
])
sketch11.setExpression("Constraints[4]", "Params.sketch11_radius")
pocket7 = body.newObject("PartDesign::Pocket", "Pocket006")
pocket7.Profile = sketch11
pocket7.setExpression("Length", "Params.pocket7_length")
pocket7.Reversed = True

doc.recompute()
